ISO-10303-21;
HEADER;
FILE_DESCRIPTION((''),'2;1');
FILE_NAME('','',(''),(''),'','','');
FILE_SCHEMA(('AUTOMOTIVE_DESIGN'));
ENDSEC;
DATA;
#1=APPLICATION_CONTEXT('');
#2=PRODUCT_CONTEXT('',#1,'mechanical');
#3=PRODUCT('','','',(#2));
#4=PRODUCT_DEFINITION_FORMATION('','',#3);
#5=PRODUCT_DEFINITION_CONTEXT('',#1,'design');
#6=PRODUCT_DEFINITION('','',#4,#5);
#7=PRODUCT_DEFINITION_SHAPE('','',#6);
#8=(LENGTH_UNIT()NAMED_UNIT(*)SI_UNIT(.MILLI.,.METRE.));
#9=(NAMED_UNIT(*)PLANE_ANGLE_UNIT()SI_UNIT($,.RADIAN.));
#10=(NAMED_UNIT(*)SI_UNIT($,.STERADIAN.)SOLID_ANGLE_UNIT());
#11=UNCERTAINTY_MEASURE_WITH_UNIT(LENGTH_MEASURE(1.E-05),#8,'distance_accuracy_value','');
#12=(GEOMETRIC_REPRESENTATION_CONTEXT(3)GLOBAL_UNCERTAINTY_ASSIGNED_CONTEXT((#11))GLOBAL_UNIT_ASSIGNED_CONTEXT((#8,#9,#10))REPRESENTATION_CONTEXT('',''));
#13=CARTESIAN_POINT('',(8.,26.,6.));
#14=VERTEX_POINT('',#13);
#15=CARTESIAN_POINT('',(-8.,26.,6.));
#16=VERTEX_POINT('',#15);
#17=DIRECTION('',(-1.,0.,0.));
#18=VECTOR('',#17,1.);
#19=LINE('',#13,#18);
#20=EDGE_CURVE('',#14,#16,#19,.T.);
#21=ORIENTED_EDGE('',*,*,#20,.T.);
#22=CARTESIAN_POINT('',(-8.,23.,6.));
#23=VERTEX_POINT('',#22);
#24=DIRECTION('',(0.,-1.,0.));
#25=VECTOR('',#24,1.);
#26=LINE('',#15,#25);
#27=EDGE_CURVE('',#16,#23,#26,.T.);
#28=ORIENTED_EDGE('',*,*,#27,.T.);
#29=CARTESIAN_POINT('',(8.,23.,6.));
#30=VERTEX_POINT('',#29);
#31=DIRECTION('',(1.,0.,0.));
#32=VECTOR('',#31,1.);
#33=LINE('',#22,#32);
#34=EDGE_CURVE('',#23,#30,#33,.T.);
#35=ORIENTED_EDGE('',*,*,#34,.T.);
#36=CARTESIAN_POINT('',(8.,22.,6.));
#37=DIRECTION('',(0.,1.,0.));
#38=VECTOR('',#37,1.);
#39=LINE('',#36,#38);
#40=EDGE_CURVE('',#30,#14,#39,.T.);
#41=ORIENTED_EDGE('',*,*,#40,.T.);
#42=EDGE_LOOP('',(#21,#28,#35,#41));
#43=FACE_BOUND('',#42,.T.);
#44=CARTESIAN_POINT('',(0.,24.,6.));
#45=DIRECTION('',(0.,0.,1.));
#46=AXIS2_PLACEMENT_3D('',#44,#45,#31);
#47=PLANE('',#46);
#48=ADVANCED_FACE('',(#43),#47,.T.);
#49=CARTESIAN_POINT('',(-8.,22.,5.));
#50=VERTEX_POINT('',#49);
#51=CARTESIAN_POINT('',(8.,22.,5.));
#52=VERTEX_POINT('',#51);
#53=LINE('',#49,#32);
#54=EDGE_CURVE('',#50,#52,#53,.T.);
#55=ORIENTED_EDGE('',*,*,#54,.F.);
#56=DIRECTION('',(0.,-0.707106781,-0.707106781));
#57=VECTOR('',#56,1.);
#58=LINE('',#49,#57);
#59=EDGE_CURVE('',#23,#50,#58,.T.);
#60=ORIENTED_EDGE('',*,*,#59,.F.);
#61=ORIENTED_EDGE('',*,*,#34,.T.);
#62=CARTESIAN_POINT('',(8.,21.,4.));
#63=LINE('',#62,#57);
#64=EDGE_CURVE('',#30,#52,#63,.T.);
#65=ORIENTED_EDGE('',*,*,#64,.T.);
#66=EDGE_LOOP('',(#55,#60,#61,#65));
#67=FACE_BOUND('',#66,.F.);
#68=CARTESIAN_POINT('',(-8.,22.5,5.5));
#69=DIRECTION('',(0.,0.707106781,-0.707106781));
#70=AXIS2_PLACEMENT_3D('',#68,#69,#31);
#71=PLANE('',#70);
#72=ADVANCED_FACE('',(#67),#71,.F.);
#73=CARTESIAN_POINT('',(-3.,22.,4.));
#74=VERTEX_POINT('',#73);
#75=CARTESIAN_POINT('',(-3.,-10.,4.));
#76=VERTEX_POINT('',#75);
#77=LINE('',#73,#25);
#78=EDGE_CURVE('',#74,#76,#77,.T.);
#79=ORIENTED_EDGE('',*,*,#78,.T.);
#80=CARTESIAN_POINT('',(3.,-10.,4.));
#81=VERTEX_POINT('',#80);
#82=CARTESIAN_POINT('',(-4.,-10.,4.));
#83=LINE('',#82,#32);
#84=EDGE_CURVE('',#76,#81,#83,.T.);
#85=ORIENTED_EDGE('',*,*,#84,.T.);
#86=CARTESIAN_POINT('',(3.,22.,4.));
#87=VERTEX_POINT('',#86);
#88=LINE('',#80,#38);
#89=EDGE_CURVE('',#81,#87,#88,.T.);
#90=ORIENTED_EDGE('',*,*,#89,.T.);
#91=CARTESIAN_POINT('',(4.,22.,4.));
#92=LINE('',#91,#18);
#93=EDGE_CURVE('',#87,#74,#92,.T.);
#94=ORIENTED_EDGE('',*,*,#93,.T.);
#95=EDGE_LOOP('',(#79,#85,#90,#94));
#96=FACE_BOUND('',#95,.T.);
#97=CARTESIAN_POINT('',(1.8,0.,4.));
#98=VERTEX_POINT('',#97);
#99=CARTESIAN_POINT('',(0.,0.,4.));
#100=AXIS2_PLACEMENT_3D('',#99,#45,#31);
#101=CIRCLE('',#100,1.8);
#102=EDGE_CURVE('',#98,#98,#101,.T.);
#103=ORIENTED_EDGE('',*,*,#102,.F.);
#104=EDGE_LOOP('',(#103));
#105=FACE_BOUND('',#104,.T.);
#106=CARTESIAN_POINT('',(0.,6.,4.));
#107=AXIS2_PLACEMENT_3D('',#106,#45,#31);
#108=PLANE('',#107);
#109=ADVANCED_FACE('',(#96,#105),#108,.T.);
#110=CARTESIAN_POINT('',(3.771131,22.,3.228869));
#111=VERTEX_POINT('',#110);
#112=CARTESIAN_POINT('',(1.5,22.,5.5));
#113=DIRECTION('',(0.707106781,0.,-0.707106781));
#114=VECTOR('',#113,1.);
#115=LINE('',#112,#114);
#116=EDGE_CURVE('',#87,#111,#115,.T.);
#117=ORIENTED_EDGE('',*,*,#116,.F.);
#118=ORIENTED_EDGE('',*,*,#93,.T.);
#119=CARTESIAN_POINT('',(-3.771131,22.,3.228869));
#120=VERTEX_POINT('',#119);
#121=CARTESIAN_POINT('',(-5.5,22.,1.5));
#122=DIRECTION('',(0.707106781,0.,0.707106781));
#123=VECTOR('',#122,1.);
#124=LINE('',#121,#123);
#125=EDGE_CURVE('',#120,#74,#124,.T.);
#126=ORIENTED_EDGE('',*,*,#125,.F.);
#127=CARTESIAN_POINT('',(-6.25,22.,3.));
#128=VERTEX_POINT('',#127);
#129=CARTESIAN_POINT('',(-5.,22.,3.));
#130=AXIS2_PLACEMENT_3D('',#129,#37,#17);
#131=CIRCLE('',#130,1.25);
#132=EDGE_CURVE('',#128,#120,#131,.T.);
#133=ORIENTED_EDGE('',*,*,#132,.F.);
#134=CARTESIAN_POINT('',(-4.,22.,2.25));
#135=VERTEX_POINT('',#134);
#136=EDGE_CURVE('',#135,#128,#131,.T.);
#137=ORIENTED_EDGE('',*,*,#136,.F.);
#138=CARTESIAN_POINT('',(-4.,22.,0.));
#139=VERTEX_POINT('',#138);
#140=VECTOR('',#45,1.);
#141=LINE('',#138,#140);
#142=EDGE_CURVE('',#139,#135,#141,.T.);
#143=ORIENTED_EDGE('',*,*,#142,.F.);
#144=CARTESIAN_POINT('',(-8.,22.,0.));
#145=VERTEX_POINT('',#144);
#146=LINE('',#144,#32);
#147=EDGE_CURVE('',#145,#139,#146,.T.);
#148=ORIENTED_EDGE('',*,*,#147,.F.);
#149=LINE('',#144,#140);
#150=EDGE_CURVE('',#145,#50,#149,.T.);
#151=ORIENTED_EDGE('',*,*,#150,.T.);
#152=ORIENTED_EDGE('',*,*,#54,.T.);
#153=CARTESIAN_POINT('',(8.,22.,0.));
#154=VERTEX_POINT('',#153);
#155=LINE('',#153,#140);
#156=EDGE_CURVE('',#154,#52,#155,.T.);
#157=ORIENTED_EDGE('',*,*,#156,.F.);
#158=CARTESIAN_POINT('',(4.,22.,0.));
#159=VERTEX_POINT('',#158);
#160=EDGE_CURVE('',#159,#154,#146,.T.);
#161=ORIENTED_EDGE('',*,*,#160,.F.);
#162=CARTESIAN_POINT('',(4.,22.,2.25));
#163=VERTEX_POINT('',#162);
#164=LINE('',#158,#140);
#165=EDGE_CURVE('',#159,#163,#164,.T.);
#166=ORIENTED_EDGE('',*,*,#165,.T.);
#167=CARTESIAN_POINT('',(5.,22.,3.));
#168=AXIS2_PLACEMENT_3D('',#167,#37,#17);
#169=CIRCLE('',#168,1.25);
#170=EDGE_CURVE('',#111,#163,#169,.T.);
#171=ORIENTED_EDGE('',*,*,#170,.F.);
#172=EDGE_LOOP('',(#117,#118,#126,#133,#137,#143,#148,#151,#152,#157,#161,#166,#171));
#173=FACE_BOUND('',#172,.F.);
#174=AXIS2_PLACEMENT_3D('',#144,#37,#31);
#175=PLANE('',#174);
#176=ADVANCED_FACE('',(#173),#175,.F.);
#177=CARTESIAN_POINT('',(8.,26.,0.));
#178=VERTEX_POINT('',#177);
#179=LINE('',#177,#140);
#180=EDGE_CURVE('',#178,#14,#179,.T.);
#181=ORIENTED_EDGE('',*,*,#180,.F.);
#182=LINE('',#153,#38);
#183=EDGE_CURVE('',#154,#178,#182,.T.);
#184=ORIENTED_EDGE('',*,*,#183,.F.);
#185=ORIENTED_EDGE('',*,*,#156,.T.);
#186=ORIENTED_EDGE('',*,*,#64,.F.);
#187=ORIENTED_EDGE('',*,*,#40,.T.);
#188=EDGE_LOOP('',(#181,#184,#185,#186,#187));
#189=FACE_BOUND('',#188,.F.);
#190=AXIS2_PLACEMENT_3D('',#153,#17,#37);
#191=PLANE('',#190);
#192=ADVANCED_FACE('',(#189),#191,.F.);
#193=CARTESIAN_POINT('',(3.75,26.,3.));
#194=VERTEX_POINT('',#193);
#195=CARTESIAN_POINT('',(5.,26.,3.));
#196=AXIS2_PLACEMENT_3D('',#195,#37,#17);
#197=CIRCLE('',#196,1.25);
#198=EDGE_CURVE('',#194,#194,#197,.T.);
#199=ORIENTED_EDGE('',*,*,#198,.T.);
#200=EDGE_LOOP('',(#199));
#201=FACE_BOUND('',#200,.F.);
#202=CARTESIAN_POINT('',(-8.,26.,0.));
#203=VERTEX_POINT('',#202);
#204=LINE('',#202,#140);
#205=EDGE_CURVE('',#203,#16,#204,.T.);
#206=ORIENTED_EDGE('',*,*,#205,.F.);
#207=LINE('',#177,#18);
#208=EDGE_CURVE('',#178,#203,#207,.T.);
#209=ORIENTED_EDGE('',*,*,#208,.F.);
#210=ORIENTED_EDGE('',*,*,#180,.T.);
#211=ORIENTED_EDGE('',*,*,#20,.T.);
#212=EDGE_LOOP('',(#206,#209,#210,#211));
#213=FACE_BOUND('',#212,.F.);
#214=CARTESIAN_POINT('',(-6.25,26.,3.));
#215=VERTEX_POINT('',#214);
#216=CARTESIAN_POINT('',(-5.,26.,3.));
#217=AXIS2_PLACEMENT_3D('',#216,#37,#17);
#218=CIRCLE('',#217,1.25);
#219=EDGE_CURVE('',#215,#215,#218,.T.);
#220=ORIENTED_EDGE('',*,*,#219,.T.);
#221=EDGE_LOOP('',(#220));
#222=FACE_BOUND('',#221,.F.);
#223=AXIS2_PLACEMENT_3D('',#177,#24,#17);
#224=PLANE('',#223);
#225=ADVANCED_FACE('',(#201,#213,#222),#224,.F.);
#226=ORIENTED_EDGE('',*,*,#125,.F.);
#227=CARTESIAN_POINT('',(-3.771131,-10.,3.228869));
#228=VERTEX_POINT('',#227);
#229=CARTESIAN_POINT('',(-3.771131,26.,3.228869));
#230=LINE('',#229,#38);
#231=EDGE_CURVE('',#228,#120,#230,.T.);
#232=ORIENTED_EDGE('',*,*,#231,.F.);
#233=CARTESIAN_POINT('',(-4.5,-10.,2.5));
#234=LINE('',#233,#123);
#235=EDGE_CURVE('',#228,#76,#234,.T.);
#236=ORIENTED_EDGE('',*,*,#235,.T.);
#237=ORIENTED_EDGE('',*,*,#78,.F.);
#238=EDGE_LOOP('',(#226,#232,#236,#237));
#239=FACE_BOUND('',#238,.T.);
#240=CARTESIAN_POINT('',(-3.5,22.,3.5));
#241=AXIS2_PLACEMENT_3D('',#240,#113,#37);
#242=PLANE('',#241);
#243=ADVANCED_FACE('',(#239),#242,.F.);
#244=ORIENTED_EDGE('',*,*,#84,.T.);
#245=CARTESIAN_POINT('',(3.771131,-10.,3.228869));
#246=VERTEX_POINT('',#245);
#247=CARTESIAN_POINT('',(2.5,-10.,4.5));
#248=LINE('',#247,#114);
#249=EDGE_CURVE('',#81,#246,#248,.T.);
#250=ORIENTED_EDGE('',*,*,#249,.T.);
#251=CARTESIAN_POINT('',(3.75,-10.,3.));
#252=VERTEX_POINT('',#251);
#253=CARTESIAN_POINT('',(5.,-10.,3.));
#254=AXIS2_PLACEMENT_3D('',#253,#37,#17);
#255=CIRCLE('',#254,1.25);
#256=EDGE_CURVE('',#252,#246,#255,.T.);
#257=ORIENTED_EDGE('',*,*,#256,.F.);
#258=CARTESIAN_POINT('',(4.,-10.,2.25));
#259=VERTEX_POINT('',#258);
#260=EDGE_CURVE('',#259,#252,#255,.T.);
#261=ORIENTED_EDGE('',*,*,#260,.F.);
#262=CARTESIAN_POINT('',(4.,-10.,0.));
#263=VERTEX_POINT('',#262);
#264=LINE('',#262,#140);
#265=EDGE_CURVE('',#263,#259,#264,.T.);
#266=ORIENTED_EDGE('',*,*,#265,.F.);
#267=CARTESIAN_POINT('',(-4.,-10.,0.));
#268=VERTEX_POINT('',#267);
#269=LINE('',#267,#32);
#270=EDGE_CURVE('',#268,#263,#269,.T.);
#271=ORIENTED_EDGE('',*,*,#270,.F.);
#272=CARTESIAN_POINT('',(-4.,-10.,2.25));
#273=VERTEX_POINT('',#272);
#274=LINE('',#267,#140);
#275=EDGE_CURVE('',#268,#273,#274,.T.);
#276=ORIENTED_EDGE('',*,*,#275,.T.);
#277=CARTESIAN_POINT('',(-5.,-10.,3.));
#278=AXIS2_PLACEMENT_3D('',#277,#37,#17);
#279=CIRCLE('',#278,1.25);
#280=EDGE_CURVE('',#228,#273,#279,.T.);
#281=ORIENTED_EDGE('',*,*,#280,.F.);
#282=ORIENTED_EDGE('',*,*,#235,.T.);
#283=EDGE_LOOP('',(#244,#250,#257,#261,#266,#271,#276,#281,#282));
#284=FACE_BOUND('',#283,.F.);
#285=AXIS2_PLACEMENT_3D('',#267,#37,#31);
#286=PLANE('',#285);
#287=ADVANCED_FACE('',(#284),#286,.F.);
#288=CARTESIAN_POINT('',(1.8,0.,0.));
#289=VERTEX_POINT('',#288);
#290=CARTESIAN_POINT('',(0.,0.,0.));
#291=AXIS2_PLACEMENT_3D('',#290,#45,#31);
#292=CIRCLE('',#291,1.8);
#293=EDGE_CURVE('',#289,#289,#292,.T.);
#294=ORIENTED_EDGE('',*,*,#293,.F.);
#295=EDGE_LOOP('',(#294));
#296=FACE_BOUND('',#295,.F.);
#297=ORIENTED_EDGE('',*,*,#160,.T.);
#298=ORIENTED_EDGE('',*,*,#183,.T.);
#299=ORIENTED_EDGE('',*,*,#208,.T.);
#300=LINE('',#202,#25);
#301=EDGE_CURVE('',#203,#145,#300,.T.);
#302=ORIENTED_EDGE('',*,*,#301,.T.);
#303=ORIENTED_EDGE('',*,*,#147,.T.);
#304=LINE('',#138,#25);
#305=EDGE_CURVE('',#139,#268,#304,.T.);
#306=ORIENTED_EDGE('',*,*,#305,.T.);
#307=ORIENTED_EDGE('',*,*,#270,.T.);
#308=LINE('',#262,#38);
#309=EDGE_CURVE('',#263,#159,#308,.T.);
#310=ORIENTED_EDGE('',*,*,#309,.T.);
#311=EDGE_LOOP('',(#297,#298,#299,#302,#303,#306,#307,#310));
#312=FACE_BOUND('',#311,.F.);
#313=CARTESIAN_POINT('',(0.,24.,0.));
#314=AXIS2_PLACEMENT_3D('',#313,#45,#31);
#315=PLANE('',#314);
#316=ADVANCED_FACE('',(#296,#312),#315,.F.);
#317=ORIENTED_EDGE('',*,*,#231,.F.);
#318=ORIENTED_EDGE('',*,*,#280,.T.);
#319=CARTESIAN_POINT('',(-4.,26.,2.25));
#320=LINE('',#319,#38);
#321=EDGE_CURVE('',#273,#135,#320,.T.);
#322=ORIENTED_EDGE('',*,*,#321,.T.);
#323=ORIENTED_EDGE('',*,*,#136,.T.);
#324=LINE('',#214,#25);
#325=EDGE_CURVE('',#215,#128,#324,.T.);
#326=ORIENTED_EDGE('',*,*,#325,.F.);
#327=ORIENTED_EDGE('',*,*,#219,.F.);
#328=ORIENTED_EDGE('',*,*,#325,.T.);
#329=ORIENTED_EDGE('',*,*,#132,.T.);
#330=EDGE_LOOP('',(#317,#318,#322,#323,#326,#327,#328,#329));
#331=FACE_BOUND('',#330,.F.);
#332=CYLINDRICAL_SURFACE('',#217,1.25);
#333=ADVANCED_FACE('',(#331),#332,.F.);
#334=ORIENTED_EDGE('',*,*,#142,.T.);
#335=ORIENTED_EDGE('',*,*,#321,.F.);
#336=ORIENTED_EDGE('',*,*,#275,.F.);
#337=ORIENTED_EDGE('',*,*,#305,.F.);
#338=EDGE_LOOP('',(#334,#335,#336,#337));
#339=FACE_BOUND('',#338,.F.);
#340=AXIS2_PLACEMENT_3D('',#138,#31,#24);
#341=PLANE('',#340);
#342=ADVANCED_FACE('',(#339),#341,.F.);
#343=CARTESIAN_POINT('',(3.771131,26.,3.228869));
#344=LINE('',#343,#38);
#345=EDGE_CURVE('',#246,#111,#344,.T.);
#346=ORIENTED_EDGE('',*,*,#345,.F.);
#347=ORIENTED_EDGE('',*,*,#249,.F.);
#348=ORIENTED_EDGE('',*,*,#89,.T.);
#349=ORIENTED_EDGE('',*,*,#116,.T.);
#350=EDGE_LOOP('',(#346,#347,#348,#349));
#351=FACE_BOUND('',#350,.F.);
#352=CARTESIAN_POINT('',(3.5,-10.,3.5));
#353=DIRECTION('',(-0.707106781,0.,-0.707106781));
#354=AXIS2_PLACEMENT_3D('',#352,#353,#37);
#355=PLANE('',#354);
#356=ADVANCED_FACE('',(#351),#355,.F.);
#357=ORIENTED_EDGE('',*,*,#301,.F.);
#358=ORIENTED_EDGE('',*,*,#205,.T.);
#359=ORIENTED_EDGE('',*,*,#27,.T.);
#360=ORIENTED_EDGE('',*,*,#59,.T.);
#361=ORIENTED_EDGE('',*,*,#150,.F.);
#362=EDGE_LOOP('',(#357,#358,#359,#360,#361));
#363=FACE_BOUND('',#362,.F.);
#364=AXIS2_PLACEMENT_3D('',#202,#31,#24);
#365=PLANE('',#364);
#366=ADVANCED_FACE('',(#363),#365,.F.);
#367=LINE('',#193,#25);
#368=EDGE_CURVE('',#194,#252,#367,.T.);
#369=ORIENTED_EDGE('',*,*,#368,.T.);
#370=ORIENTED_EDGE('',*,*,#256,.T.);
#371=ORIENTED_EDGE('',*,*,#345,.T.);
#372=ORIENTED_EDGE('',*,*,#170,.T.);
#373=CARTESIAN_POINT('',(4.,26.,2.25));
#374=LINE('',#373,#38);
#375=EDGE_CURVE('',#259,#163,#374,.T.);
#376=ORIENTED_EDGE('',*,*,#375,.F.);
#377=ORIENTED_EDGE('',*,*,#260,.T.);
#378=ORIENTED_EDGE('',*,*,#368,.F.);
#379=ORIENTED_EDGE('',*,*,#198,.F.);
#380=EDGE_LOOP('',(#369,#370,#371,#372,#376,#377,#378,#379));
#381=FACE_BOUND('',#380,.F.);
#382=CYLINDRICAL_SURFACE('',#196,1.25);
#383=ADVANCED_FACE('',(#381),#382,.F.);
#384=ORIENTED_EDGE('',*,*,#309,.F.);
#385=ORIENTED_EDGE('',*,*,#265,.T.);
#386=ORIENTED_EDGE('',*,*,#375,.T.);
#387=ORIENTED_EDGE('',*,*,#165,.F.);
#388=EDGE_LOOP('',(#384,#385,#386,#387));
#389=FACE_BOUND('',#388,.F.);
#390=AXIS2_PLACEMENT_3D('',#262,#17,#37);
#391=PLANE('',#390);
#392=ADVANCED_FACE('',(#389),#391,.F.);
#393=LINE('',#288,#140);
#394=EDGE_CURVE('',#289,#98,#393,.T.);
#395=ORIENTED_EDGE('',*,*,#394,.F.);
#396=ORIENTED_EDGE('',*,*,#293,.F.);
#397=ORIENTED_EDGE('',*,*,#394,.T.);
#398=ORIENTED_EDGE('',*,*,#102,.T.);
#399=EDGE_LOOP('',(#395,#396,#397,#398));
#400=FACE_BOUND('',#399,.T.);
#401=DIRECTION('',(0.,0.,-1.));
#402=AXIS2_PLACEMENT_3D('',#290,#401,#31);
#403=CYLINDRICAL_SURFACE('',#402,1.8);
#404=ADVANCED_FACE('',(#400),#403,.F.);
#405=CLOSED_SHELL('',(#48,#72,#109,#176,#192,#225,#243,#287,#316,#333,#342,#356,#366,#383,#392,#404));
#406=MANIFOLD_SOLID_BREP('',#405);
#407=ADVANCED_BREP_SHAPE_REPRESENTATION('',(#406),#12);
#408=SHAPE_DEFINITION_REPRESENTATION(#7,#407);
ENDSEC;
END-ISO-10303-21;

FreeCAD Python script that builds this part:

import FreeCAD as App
import Part
import Sketcher


def edges_at(feature, points):
    """Names of the edges that pass closest to the given points."""
    edges = feature.Shape.Edges
    near = lambda p: min(range(len(edges)), key=lambda i: edges[i].distToShape(Part.Vertex(*p))[0])
    return sorted({f"Edge{near(p) + 1}" for p in points})


def add_polygon(sketch, points):
    """Adds a closed chain of lines whose ends are joined by coincident constraints."""
    first, n = sketch.GeometryCount, len(points)
    for a, b in zip(points, points[1:] + points[:1]):
        sketch.addGeometry(Part.LineSegment(App.Vector(*a, 0), App.Vector(*b, 0)), False)
    for i in range(n):
        sketch.addConstraint(Sketcher.Constraint("Coincident", first + i, 2, first + (i + 1) % n, 1))

doc = App.newDocument("Part")
body = doc.addObject("PartDesign::Body", "Body")

# Sketch on XY plane
sketch1 = body.newObject("Sketcher::SketchObject", "Sketch")
sketch1.AttachmentSupport = (doc.getObject("XY_Plane"), [""])
sketch1.MapMode = "FlatFace"
add_polygon(sketch1, [(4, 22), (-4, 22), (-4, -10), (4, -10)])  # lines 0-3
sketch1.addGeometry(Part.Circle(App.Vector(0, 0, 0), App.Vector(0, 0, 1), 1.8), False)  # 4
sketch1.addConstraint([
    Sketcher.Constraint("Horizontal", 0),
    Sketcher.Constraint("Vertical", 1),
    Sketcher.Constraint("Horizontal", 2),
    Sketcher.Constraint("Vertical", 3),
    Sketcher.Constraint("Coincident", 4, 3, -1, 1),
    Sketcher.Constraint("Diameter", 4, 3.6),
    Sketcher.Constraint("DistanceX", 0, 2, 0, 1, 8.0),
    Sketcher.Constraint("DistanceY", 1, 2, 1, 1, 32.0),
    Sketcher.Constraint("DistanceX", 0, 2, -1, 1, 4.0),
    Sketcher.Constraint("DistanceY", -1, 1, 0, 2, 22.0),
])
pad1 = body.newObject("PartDesign::Pad", "Pad")
pad1.Profile = sketch1
pad1.Length = 4

# Sketch on XY plane
sketch2 = body.newObject("Sketcher::SketchObject", "Sketch001")
sketch2.AttachmentSupport = (doc.getObject("XY_Plane"), [""])
sketch2.MapMode = "FlatFace"
add_polygon(sketch2, [(8, 26), (-8, 26), (-8, 22), (8, 22)])  # lines 0-3
sketch2.addConstraint([
    Sketcher.Constraint("Horizontal", 0),
    Sketcher.Constraint("Vertical", 1),
    Sketcher.Constraint("Horizontal", 2),
    Sketcher.Constraint("Vertical", 3),
    Sketcher.Constraint("DistanceX", 0, 2, 0, 1, 16.0),
    Sketcher.Constraint("DistanceY", 1, 2, 1, 1, 4.0),
    Sketcher.Constraint("DistanceX", 0, 2, -1, 1, 8.0),
    Sketcher.Constraint("DistanceY", -1, 1, 0, 2, 26.0),
])
pad2 = body.newObject("PartDesign::Pad", "Pad001")
pad2.Profile = sketch2
pad2.Length = 6
doc.recompute()

chamfer = body.newObject("PartDesign::Chamfer", "Chamfer")
chamfer.Base = (pad2, edges_at(pad2, [(0, 22, 6), (-4, 6, 4), (4, 6, 4)]))
chamfer.Size = 1

# Sketch on XZ plane
sketch3 = body.newObject("Sketcher::SketchObject", "Sketch002")
sketch3.AttachmentSupport = (doc.getObject("XZ_Plane"), [""])
sketch3.MapMode = "FlatFace"
sketch3.AttachmentOffset = App.Placement(App.Vector(0, 0, -26), App.Rotation())
sketch3.addGeometry([
    Part.Circle(App.Vector(5, 3, 0), App.Vector(0, 0, 1), 1.2),
    Part.Circle(App.Vector(-5, 3, 0), App.Vector(0, 0, 1), 1.2),
], False)
sketch3.addConstraint([
    Sketcher.Constraint("Equal", 0, 1),
    Sketcher.Constraint("Symmetric", 0, 3, 1, 3, -2),
    Sketcher.Constraint("Diameter", 0, 2.5),
    Sketcher.Constraint("DistanceX", -1, 1, 0, 3, 5.0),
    Sketcher.Constraint("DistanceY", -1, 1, 0, 3, 3.0),
])
pocket1 = body.newObject("PartDesign::Pocket", "Pocket")
pocket1.Profile = sketch3
pocket1.Length = 40
pocket1.Reversed = True

doc.recompute()
